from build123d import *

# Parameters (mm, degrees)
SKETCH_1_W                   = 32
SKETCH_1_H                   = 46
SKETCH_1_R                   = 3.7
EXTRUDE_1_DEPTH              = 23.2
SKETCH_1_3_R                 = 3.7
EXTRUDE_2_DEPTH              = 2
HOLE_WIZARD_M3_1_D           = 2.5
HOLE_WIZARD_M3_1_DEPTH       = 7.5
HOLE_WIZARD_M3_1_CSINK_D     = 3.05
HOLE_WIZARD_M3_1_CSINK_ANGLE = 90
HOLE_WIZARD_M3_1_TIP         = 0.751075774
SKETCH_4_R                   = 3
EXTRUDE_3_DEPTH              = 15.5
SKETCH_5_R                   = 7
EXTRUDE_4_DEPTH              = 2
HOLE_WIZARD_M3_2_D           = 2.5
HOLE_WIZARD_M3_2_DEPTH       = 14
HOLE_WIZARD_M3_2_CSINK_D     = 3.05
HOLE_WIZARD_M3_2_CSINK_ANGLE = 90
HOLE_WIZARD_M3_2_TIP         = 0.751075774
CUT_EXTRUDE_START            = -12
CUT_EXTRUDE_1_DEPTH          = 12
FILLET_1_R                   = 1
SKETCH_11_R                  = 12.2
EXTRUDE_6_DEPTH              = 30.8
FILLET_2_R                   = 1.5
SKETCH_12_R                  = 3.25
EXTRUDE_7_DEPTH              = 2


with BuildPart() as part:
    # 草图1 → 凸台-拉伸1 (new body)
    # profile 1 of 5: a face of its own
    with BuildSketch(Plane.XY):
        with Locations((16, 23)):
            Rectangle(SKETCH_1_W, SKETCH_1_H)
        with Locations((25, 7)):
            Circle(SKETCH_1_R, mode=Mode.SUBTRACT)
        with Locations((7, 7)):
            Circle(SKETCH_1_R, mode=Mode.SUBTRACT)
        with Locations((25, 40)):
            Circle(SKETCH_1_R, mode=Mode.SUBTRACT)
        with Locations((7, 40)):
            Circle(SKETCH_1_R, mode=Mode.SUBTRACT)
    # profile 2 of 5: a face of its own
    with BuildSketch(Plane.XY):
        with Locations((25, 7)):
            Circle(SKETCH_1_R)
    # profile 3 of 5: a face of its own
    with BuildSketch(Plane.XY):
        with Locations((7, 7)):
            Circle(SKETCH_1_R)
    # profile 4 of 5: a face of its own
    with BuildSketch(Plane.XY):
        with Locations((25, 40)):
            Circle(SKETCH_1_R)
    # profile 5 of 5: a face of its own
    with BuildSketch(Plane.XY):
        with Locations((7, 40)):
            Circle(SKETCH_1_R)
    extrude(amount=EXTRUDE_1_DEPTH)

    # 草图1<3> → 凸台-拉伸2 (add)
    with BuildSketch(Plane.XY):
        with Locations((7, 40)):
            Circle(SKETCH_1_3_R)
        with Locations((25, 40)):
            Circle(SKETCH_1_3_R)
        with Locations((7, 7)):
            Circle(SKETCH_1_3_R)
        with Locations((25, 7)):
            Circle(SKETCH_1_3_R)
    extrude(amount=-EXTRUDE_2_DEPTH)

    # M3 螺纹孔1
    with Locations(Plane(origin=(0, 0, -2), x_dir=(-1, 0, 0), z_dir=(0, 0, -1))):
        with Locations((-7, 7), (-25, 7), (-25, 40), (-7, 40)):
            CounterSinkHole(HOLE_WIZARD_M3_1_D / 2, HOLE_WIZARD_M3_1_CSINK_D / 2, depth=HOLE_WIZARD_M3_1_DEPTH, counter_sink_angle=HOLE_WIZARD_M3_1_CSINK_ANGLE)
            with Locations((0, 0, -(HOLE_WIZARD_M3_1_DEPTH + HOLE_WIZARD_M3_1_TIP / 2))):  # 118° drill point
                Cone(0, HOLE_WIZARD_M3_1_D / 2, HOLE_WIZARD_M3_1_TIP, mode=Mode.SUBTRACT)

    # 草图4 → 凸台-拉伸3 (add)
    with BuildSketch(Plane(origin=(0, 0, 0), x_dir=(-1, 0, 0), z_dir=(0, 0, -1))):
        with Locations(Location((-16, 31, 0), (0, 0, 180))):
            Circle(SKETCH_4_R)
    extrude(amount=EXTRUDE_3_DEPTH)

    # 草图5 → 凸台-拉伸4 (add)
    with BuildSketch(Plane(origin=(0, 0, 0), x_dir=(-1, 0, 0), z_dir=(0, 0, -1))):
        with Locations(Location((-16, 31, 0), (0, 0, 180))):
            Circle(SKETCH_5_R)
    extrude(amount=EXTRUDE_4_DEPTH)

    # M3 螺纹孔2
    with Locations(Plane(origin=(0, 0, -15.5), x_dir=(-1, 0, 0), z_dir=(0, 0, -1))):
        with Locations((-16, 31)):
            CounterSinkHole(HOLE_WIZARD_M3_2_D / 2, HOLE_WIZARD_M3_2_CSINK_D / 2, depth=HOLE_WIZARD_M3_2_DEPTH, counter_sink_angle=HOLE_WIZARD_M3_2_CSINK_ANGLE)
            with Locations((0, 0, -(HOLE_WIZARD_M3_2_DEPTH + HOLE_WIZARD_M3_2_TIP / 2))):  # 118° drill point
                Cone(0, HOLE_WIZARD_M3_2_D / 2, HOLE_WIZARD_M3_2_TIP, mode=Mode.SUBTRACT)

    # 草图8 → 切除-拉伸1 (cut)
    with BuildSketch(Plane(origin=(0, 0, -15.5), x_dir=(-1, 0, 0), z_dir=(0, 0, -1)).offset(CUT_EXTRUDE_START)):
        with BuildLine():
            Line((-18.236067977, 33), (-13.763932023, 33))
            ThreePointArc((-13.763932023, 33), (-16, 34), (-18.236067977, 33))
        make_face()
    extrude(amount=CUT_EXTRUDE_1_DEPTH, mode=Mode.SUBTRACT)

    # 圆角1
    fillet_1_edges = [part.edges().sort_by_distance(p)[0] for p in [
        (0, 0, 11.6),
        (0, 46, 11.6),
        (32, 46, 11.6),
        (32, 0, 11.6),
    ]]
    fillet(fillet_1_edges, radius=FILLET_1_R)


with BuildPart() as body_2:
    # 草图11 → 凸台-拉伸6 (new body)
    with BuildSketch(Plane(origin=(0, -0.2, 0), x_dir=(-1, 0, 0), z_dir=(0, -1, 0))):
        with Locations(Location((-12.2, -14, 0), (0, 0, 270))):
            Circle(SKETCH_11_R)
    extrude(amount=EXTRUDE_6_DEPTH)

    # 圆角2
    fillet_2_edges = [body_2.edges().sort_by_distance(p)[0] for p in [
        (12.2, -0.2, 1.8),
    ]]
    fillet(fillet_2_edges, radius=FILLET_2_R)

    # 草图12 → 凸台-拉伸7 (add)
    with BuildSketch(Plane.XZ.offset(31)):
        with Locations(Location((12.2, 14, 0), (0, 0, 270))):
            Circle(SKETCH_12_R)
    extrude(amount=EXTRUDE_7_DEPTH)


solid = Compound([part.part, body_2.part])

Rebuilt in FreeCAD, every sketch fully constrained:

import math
import FreeCAD as App
import Part
import Sketcher
Q = App.Units.Quantity


def edges_at(feature, points):
    """Names of the edges that pass closest to the given points."""
    edges = feature.Shape.Edges
    near = lambda p: min(range(len(edges)), key=lambda i: edges[i].distToShape(Part.Vertex(*p))[0])
    return sorted({f"Edge{near(p) + 1}" for p in points})

doc = App.newDocument("Part")
body = doc.addObject("PartDesign::Body", "Body")

# Sketch on XY plane
sketch1 = doc.addObject("Sketcher::SketchObject", "Sketch")
body.addObject(sketch1)
sketch1.AttachmentSupport = (doc.XY_Plane, [""])
sketch1.MapMode = "FlatFace"
sketch1.addGeometry([
    Part.LineSegment(App.Vector(0, 46, 0), App.Vector(0, 0, 0)),
    Part.LineSegment(App.Vector(0, 0, 0), App.Vector(32, 0, 0)),
    Part.LineSegment(App.Vector(32, 0, 0), App.Vector(32, 46, 0)),
    Part.LineSegment(App.Vector(32, 46, 0), App.Vector(0, 46, 0)),
], False)
sketch1.addConstraint([
    Sketcher.Constraint("Coincident", 0, 2, 1, 1),
    Sketcher.Constraint("Coincident", 1, 2, 2, 1),
    Sketcher.Constraint("Coincident", 2, 2, 3, 1),
    Sketcher.Constraint("Coincident", 3, 2, 0, 1),
    Sketcher.Constraint("Vertical", 0),
    Sketcher.Constraint("Horizontal", 1),
    Sketcher.Constraint("Vertical", 2),
    Sketcher.Constraint("Horizontal", 3),
    Sketcher.Constraint("Coincident", 0, 2, -1, 1),
    Sketcher.Constraint("DistanceX", 1, 1, 1, 2, Q("32 mm")),
    Sketcher.Constraint("DistanceY", 0, 2, 0, 1, Q("46 mm")),
])
pad1 = doc.addObject("PartDesign::Pad", "Pad")
body.addObject(pad1)
pad1.Profile = sketch1
pad1.Length = 23.2

# Sketch on XY plane
sketch2 = doc.addObject("Sketcher::SketchObject", "Sketch001")
body.addObject(sketch2)
sketch2.AttachmentSupport = (doc.XY_Plane, [""])
sketch2.MapMode = "FlatFace"
sketch2.addGeometry([
    Part.Circle(App.Vector(7, 40, 0), App.Vector(0, 0, 1), 3.7),
    Part.Circle(App.Vector(25, 40, 0), App.Vector(0, 0, 1), 3.7),
    Part.Circle(App.Vector(7, 7, 0), App.Vector(0, 0, 1), 3.7),
    Part.Circle(App.Vector(25, 7, 0), App.Vector(0, 0, 1), 3.7),
], False)
sketch2.addConstraint([
    Sketcher.Constraint("Equal", 0, 1),
    Sketcher.Constraint("Equal", 1, 2),
    Sketcher.Constraint("Equal", 2, 3),
    Sketcher.Constraint("Horizontal", 0, 3, 1, 3),
    Sketcher.Constraint("Horizontal", 2, 3, 3, 3),
    Sketcher.Constraint("Vertical", 0, 3, 2, 3),
    Sketcher.Constraint("Vertical", 1, 3, 3, 3),
    Sketcher.Constraint("Diameter", 0, Q("7.4 mm")),
    Sketcher.Constraint("DistanceX", -1, 1, 0, 3, Q("7 mm")),
    Sketcher.Constraint("DistanceY", -1, 1, 0, 3, Q("40 mm")),
    Sketcher.Constraint("DistanceX", -1, 1, 1, 3, Q("25 mm")),
    Sketcher.Constraint("DistanceY", -1, 1, 2, 3, Q("7 mm")),
])
pad2 = doc.addObject("PartDesign::Pad", "Pad001")
body.addObject(pad2)
pad2.Profile = sketch2
pad2.Length = 2
pad2.Reversed = True

# Sketch on XY plane
sketch3 = doc.addObject("Sketcher::SketchObject", "Sketch002")
body.addObject(sketch3)
sketch3.AttachmentSupport = (doc.XY_Plane, [""])
sketch3.MapMode = "FlatFace"
sketch3.AttachmentOffset = App.Placement(App.Vector(0, 0, -2), App.Rotation())
sketch3.addGeometry([
    Part.Circle(App.Vector(7, 7, 0), App.Vector(0, 0, 1), 1.2),
    Part.Circle(App.Vector(25, 7, 0), App.Vector(0, 0, 1), 1.2),
    Part.Circle(App.Vector(25, 40, 0), App.Vector(0, 0, 1), 1.2),
    Part.Circle(App.Vector(7, 40, 0), App.Vector(0, 0, 1), 1.2),
], False)
sketch3.addConstraint([
    Sketcher.Constraint("Equal", 0, 1),
    Sketcher.Constraint("Equal", 1, 2),
    Sketcher.Constraint("Equal", 2, 3),
    Sketcher.Constraint("Horizontal", 0, 3, 1, 3),
    Sketcher.Constraint("Horizontal", 2, 3, 3, 3),
    Sketcher.Constraint("Vertical", 1, 3, 2, 3),
    Sketcher.Constraint("Vertical", 0, 3, 3, 3),
    Sketcher.Constraint("Diameter", 0, Q("2.5 mm")),
    Sketcher.Constraint("DistanceX", -1, 1, 0, 3, Q("7 mm")),
    Sketcher.Constraint("DistanceY", -1, 1, 0, 3, Q("7 mm")),
    Sketcher.Constraint("DistanceX", -1, 1, 1, 3, Q("25 mm")),
    Sketcher.Constraint("DistanceY", -1, 1, 2, 3, Q("40 mm")),
])
doc.recompute()
hole = doc.addObject("PartDesign::Hole", "Hole")
body.addObject(hole)
hole.Profile = sketch3
hole.ThreadType = "None"
hole.Diameter = 2.5
hole.DepthType = "Dimension"
hole.Depth = 7.5
hole.DrillPoint = "Angled"
hole.DrillPointAngle = 118
hole.HoleCutType = "Countersink"
hole.HoleCutDiameter = 3.05
hole.HoleCutCountersinkAngle = 90
hole.Reversed = True

# Sketch on XY plane
sketch4 = doc.addObject("Sketcher::SketchObject", "Sketch003")
body.addObject(sketch4)
sketch4.AttachmentSupport = (doc.XY_Plane, [""])
sketch4.MapMode = "FlatFace"
sketch4.addGeometry(Part.Circle(App.Vector(16, 31, 0), App.Vector(0, 0, 1), 3), False)
sketch4.addConstraint([
    Sketcher.Constraint("Diameter", 0, Q("6 mm")),
    Sketcher.Constraint("DistanceX", -1, 1, 0, 3, Q("16 mm")),
    Sketcher.Constraint("DistanceY", -1, 1, 0, 3, Q("31 mm")),
])
pad3 = doc.addObject("PartDesign::Pad", "Pad002")
body.addObject(pad3)
pad3.Profile = sketch4
pad3.Length = 15.5
pad3.Reversed = True

# Sketch on XY plane
sketch5 = doc.addObject("Sketcher::SketchObject", "Sketch004")
body.addObject(sketch5)
sketch5.AttachmentSupport = (doc.XY_Plane, [""])
sketch5.MapMode = "FlatFace"
sketch5.addGeometry(Part.Circle(App.Vector(16, 31, 0), App.Vector(0, 0, 1), 7), False)
sketch5.addConstraint([
    Sketcher.Constraint("Diameter", 0, Q("14 mm")),
    Sketcher.Constraint("DistanceX", -1, 1, 0, 3, Q("16 mm")),
    Sketcher.Constraint("DistanceY", -1, 1, 0, 3, Q("31 mm")),
])
pad4 = doc.addObject("PartDesign::Pad", "Pad003")
body.addObject(pad4)
pad4.Profile = sketch5
pad4.Length = 2
pad4.Reversed = True

# Sketch on XY plane
sketch6 = doc.addObject("Sketcher::SketchObject", "Sketch005")
body.addObject(sketch6)
sketch6.AttachmentSupport = (doc.XY_Plane, [""])
sketch6.MapMode = "FlatFace"
sketch6.AttachmentOffset = App.Placement(App.Vector(0, 0, -15.5), App.Rotation())
sketch6.addGeometry(Part.Circle(App.Vector(16, 31, 0), App.Vector(0, 0, 1), 1.2), False)
sketch6.addConstraint([
    Sketcher.Constraint("Diameter", 0, Q("2.5 mm")),
    Sketcher.Constraint("DistanceX", -1, 1, 0, 3, Q("16 mm")),
    Sketcher.Constraint("DistanceY", -1, 1, 0, 3, Q("31 mm")),
])
doc.recompute()
hole2 = doc.addObject("PartDesign::Hole", "Hole001")
body.addObject(hole2)
hole2.Profile = sketch6
hole2.ThreadType = "None"
hole2.Diameter = 2.5
hole2.DepthType = "Dimension"
hole2.Depth = 14
hole2.DrillPoint = "Angled"
hole2.DrillPointAngle = 118
hole2.HoleCutType = "Countersink"
hole2.HoleCutDiameter = 3.05
hole2.HoleCutCountersinkAngle = 90
hole2.Reversed = True

# Sketch on XY plane
sketch7 = doc.addObject("Sketcher::SketchObject", "Sketch006")
body.addObject(sketch7)
sketch7.AttachmentSupport = (doc.XY_Plane, [""])
sketch7.MapMode = "FlatFace"
sketch7.AttachmentOffset = App.Placement(App.Vector(0, 0, -3.5), App.Rotation())
sketch7.addGeometry([
    Part.LineSegment(App.Vector(18.2, 33, 0), App.Vector(13.8, 33, 0)),
    Part.ArcOfCircle(Part.Circle(App.Vector(16, 31, 0), App.Vector(0, 0, 1), 3), math.radians(42), math.radians(138)),
], False)
sketch7.addConstraint([
    Sketcher.Constraint("Coincident", 0, 1, 1, 1),
    Sketcher.Constraint("Coincident", 1, 2, 0, 2),
    Sketcher.Constraint("Horizontal", 0),
    Sketcher.Constraint("Radius", 1, Q("3 mm")),
    Sketcher.Constraint("DistanceX", -1, 1, 1, 3, Q("16 mm")),
    Sketcher.Constraint("DistanceY", -1, 1, 1, 3, Q("31 mm")),
    Sketcher.Constraint("DistanceY", -1, 1, 0, 1, Q("33 mm")),
])
pocket1 = doc.addObject("PartDesign::Pocket", "Pocket")
body.addObject(pocket1)
pocket1.Profile = sketch7
pocket1.Length = 12
doc.recompute()

fillet = doc.addObject("PartDesign::Fillet", "Fillet")
body.addObject(fillet)
fillet.Base = (pocket1, edges_at(pocket1, [
    (0, 0, 11.6),
    (0, 46, 11.6),
    (32, 46, 11.6),
    (32, 0, 11.6),
]))
fillet.Radius = 1
body2 = doc.addObject("PartDesign::Body", "Body001")

# Sketch on XZ plane
sketch8 = doc.addObject("Sketcher::SketchObject", "Sketch007")
body2.addObject(sketch8)
sketch8.AttachmentSupport = (doc.getObject("XZ_Plane001"), [""])
sketch8.MapMode = "FlatFace"
sketch8.AttachmentOffset = App.Placement(App.Vector(0, 0, 0.2), App.Rotation())
sketch8.addGeometry(Part.Circle(App.Vector(12, 14, 0), App.Vector(0, 0, 1), 12), False)
sketch8.addConstraint([
    Sketcher.Constraint("Diameter", 0, Q("24.4 mm")),
    Sketcher.Constraint("DistanceY", -1, 1, 0, 3, Q("14 mm")),
    Sketcher.Constraint("DistanceX", -1, 1, 0, 3, Q("12.2 mm")),
])
pad5 = doc.addObject("PartDesign::Pad", "Pad004")
body2.addObject(pad5)
pad5.Profile = sketch8
pad5.Length = 30.8
doc.recompute()

fillet2 = doc.addObject("PartDesign::Fillet", "Fillet001")
body2.addObject(fillet2)
fillet2.Base = (pad5, edges_at(pad5, [(12.2, -0.2, 1.8)]))
fillet2.Radius = 1.5

# Sketch on XZ plane
sketch9 = doc.addObject("Sketcher::SketchObject", "Sketch008")
body2.addObject(sketch9)
sketch9.AttachmentSupport = (doc.getObject("XZ_Plane001"), [""])
sketch9.MapMode = "FlatFace"
sketch9.AttachmentOffset = App.Placement(App.Vector(0, 0, 31), App.Rotation())
sketch9.addGeometry(Part.Circle(App.Vector(12.2, 14, 0), App.Vector(0, 0, 1), 3.2), False)
sketch9.addConstraint([
    Sketcher.Constraint("Diameter", 0, Q("6.5 mm")),
    Sketcher.Constraint("DistanceY", -1, 1, 0, 3, Q("14 mm")),
    Sketcher.Constraint("DistanceX", -1, 1, 0, 3, Q("12.2 mm")),
])
pad6 = doc.addObject("PartDesign::Pad", "Pad005")
body2.addObject(pad6)
pad6.Profile = sketch9
pad6.Length = 2

doc.recompute()
